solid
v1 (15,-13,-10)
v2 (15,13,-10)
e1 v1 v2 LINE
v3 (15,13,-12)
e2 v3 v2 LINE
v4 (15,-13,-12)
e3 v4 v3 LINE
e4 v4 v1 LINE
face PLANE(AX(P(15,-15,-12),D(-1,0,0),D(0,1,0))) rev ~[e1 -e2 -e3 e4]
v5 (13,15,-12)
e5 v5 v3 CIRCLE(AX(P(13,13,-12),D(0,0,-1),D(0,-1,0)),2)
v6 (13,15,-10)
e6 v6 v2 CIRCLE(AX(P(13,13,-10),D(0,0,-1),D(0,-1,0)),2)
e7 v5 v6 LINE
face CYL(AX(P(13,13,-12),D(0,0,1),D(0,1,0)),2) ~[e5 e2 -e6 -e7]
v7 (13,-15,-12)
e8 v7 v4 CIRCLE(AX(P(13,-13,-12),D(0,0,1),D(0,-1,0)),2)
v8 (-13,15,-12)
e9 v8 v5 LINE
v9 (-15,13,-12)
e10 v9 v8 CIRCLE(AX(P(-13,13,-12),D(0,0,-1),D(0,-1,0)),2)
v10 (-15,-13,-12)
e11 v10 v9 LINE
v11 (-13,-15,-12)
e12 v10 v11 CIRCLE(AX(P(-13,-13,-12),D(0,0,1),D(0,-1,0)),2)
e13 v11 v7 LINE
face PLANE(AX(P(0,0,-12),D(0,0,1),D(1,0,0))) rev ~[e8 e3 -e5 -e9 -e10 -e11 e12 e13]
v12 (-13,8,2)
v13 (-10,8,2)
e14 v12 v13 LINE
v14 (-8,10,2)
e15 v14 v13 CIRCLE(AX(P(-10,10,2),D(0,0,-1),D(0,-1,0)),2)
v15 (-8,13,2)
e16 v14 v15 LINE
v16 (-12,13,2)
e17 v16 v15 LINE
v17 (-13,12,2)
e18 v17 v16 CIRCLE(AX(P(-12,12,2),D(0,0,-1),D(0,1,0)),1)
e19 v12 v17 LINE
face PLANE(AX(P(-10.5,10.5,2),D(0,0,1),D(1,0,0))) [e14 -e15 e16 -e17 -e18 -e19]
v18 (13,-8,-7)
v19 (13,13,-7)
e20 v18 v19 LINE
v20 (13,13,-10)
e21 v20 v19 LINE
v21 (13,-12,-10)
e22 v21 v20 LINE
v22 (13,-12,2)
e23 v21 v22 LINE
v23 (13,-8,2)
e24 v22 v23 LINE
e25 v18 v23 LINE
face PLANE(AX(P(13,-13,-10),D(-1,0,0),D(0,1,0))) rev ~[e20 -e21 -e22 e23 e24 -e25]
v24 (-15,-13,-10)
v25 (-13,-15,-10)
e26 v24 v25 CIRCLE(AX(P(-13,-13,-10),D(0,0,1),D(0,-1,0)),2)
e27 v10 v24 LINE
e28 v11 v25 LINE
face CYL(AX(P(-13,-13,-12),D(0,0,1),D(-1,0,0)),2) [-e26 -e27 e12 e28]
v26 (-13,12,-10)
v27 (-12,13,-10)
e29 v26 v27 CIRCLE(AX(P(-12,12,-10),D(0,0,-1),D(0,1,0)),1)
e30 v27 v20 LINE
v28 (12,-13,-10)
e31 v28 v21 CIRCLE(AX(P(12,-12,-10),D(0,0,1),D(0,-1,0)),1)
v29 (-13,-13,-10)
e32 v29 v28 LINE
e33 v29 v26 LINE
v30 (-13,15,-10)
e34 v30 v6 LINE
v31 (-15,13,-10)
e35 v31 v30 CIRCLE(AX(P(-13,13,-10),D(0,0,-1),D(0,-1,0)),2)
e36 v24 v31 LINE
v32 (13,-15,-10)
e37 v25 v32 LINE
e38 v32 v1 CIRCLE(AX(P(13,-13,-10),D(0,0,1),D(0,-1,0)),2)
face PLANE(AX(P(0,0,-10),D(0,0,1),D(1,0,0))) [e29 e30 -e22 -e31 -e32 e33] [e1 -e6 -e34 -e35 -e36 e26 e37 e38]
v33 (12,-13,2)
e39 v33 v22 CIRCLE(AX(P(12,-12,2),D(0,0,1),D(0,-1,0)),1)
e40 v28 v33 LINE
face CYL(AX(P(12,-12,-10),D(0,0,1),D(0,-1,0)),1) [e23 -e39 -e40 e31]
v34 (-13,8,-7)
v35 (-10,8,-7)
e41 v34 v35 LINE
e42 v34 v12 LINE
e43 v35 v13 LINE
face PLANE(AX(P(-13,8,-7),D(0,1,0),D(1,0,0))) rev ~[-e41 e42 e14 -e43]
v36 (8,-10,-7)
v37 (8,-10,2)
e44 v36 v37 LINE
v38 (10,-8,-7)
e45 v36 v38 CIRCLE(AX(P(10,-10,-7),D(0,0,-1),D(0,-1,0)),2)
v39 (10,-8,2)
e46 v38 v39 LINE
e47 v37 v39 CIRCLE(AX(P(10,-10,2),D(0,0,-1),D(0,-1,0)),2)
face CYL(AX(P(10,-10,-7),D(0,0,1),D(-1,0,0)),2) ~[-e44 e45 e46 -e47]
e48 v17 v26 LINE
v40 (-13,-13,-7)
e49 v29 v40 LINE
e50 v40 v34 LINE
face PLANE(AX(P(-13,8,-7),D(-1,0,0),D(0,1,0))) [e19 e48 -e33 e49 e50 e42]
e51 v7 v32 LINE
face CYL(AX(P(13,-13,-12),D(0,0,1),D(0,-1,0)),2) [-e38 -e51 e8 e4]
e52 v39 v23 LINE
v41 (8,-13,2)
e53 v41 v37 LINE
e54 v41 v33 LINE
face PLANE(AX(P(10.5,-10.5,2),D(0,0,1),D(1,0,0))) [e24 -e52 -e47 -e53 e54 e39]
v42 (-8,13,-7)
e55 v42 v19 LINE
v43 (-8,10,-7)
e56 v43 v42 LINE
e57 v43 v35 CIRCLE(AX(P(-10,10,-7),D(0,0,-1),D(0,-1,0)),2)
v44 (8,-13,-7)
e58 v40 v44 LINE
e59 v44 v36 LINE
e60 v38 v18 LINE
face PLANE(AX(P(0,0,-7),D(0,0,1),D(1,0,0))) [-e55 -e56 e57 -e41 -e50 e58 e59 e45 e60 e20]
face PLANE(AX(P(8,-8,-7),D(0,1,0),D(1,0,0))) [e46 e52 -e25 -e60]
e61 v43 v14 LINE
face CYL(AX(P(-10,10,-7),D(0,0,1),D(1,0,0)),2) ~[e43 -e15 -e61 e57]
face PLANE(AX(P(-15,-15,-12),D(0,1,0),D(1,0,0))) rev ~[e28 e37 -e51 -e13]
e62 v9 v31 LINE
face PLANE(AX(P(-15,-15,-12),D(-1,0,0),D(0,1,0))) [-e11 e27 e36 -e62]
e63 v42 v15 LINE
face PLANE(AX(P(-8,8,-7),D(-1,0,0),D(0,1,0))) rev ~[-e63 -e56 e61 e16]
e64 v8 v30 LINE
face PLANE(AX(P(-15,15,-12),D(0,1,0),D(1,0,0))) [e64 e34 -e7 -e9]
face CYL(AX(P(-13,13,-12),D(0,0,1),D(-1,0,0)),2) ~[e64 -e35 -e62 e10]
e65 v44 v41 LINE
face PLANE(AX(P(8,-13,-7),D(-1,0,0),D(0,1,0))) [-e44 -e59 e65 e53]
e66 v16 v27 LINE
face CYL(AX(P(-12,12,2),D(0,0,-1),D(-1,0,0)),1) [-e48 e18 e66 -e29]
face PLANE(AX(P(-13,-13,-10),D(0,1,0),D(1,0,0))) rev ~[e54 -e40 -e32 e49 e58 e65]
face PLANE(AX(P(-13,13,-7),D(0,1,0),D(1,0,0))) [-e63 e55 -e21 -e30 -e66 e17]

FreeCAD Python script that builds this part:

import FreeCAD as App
import Part
import Sketcher


def edges_at(feature, points):
    """Names of the edges that pass closest to the given points."""
    edges = feature.Shape.Edges
    near = lambda p: min(range(len(edges)), key=lambda i: edges[i].distToShape(Part.Vertex(*p))[0])
    return sorted({f"Edge{near(p) + 1}" for p in points})

doc = App.newDocument("Part")
body = doc.addObject("PartDesign::Body", "Body")

# Sketch on XY plane
sketch1 = body.newObject("Sketcher::SketchObject", "Sketch")
sketch1.AttachmentSupport = (doc.getObject("XY_Plane"), [""])
sketch1.MapMode = "FlatFace"
sketch1.AttachmentOffset = App.Placement(App.Vector(0, 0, -10), App.Rotation())
sketch1.addGeometry([
    Part.LineSegment(App.Vector(-13, 13, 0), App.Vector(-13, -13, 0)),
    Part.LineSegment(App.Vector(-13, -13, 0), App.Vector(13, -13, 0)),
    Part.LineSegment(App.Vector(13, -13, 0), App.Vector(13, 13, 0)),
    Part.LineSegment(App.Vector(13, 13, 0), App.Vector(-13, 13, 0)),
], False)
sketch1.addConstraint([
    Sketcher.Constraint("Coincident", 0, 2, 1, 1),
    Sketcher.Constraint("Coincident", 1, 2, 2, 1),
    Sketcher.Constraint("Coincident", 2, 2, 3, 1),
    Sketcher.Constraint("Coincident", 3, 2, 0, 1),
    Sketcher.Constraint("Vertical", 0),
    Sketcher.Constraint("Horizontal", 1),
    Sketcher.Constraint("Vertical", 2),
    Sketcher.Constraint("Horizontal", 3),
    Sketcher.Constraint("Symmetric", 0, 2, 2, 2, -1, 1),
    Sketcher.Constraint("Equal", 3, 0),
    Sketcher.Constraint("DistanceX", 1, 1, 1, 2, 26.0),
])
pad1 = body.newObject("PartDesign::Pad", "Pad")
pad1.Profile = sketch1
pad1.Length = 3
body2 = doc.addObject("PartDesign::Body", "Body001")

# Sketch on XY plane
sketch2 = body2.newObject("Sketcher::SketchObject", "Sketch001")
sketch2.AttachmentSupport = (doc.getObject("XY_Plane001"), [""])
sketch2.MapMode = "FlatFace"
sketch2.AttachmentOffset = App.Placement(App.Vector(0, 0, -7), App.Rotation())
sketch2.addGeometry([
    Part.LineSegment(App.Vector(-13, 13, 0), App.Vector(-13, 8, 0)),
    Part.LineSegment(App.Vector(-13, 8, 0), App.Vector(-8, 8, 0)),
    Part.LineSegment(App.Vector(-8, 8, 0), App.Vector(-8, 13, 0)),
    Part.LineSegment(App.Vector(-8, 13, 0), App.Vector(-13, 13, 0)),
], False)
sketch2.addConstraint([
    Sketcher.Constraint("Coincident", 0, 2, 1, 1),
    Sketcher.Constraint("Coincident", 1, 2, 2, 1),
    Sketcher.Constraint("Coincident", 2, 2, 3, 1),
    Sketcher.Constraint("Coincident", 3, 2, 0, 1),
    Sketcher.Constraint("Vertical", 0),
    Sketcher.Constraint("Horizontal", 1),
    Sketcher.Constraint("Vertical", 2),
    Sketcher.Constraint("Horizontal", 3),
    Sketcher.Constraint("Equal", 3, 0),
    Sketcher.Constraint("DistanceX", 1, 1, 1, 2, 5.0),
    Sketcher.Constraint("DistanceX", 0, 2, -1, 1, 13.0),
    Sketcher.Constraint("DistanceY", -1, 1, 0, 2, 8.0),
])
pad2 = body2.newObject("PartDesign::Pad", "Pad001")
pad2.Profile = sketch2
pad2.Length = 9
body3 = doc.addObject("PartDesign::Body", "Body002")

# Sketch on XY plane
sketch3 = body3.newObject("Sketcher::SketchObject", "Sketch002")
sketch3.AttachmentSupport = (doc.getObject("XY_Plane002"), [""])
sketch3.MapMode = "FlatFace"
sketch3.AttachmentOffset = App.Placement(App.Vector(0, 0, -12), App.Rotation())
sketch3.addGeometry([
    Part.LineSegment(App.Vector(-15, 15, 0), App.Vector(-15, -15, 0)),
    Part.LineSegment(App.Vector(-15, -15, 0), App.Vector(15, -15, 0)),
    Part.LineSegment(App.Vector(15, -15, 0), App.Vector(15, 15, 0)),
    Part.LineSegment(App.Vector(15, 15, 0), App.Vector(-15, 15, 0)),
], False)
sketch3.addConstraint([
    Sketcher.Constraint("Coincident", 0, 2, 1, 1),
    Sketcher.Constraint("Coincident", 1, 2, 2, 1),
    Sketcher.Constraint("Coincident", 2, 2, 3, 1),
    Sketcher.Constraint("Coincident", 3, 2, 0, 1),
    Sketcher.Constraint("Vertical", 0),
    Sketcher.Constraint("Horizontal", 1),
    Sketcher.Constraint("Vertical", 2),
    Sketcher.Constraint("Horizontal", 3),
    Sketcher.Constraint("Symmetric", 0, 2, 2, 2, -1, 1),
    Sketcher.Constraint("Equal", 3, 0),
    Sketcher.Constraint("DistanceX", 1, 1, 1, 2, 30.0),
])
pad3 = body3.newObject("PartDesign::Pad", "Pad002")
pad3.Profile = sketch3
pad3.Length = 2
body4 = doc.addObject("PartDesign::Body", "Body003")

# Sketch on XY plane
sketch4 = body4.newObject("Sketcher::SketchObject", "Sketch003")
sketch4.AttachmentSupport = (doc.getObject("XY_Plane003"), [""])
sketch4.MapMode = "FlatFace"
sketch4.AttachmentOffset = App.Placement(App.Vector(0, 0, -7), App.Rotation())
sketch4.addGeometry([
    Part.LineSegment(App.Vector(8, -8, 0), App.Vector(8, -13, 0)),
    Part.LineSegment(App.Vector(8, -13, 0), App.Vector(13, -13, 0)),
    Part.LineSegment(App.Vector(13, -13, 0), App.Vector(13, -8, 0)),
    Part.LineSegment(App.Vector(13, -8, 0), App.Vector(8, -8, 0)),
], False)
sketch4.addConstraint([
    Sketcher.Constraint("Coincident", 0, 2, 1, 1),
    Sketcher.Constraint("Coincident", 1, 2, 2, 1),
    Sketcher.Constraint("Coincident", 2, 2, 3, 1),
    Sketcher.Constraint("Coincident", 3, 2, 0, 1),
    Sketcher.Constraint("Vertical", 0),
    Sketcher.Constraint("Horizontal", 1),
    Sketcher.Constraint("Vertical", 2),
    Sketcher.Constraint("Horizontal", 3),
    Sketcher.Constraint("Equal", 3, 0),
    Sketcher.Constraint("DistanceX", 1, 1, 1, 2, 5.0),
    Sketcher.Constraint("DistanceX", -1, 1, 0, 2, 8.0),
    Sketcher.Constraint("DistanceY", 0, 2, -1, 1, 13.0),
])
pad4 = body4.newObject("PartDesign::Pad", "Pad003")
pad4.Profile = sketch4
pad4.Length = 9
doc.recompute()

boolean = body4.newObject("PartDesign::Boolean", "Boolean")
boolean.Type = "Fuse"
boolean.addObjects([body])
doc.recompute()

boolean2 = body4.newObject("PartDesign::Boolean", "Boolean001")
boolean2.Type = "Fuse"
boolean2.addObjects([body2])
doc.recompute()

boolean3 = body4.newObject("PartDesign::Boolean", "Boolean002")
boolean3.Type = "Fuse"
boolean3.addObjects([body3])
doc.recompute()

fillet = body4.newObject("PartDesign::Fillet", "Fillet")
fillet.Base = (boolean3, edges_at(boolean3, [
    (-15, -15, -11),
    (-15, 15, -11),
    (15, 15, -11),
    (15, -15, -11),
]))
fillet.Radius = 2
doc.recompute()

fillet2 = body4.newObject("PartDesign::Fillet", "Fillet001")
fillet2.Base = (fillet, edges_at(fillet, [(-8, 8, -2.5), (8, -8, -2.5)]))
fillet2.Radius = 2
doc.recompute()

fillet3 = body4.newObject("PartDesign::Fillet", "Fillet002")
fillet3.Base = (fillet2, edges_at(fillet2, [(-13, 13, -4), (13, -13, -4)]))
fillet3.Radius = 1

doc.recompute()
